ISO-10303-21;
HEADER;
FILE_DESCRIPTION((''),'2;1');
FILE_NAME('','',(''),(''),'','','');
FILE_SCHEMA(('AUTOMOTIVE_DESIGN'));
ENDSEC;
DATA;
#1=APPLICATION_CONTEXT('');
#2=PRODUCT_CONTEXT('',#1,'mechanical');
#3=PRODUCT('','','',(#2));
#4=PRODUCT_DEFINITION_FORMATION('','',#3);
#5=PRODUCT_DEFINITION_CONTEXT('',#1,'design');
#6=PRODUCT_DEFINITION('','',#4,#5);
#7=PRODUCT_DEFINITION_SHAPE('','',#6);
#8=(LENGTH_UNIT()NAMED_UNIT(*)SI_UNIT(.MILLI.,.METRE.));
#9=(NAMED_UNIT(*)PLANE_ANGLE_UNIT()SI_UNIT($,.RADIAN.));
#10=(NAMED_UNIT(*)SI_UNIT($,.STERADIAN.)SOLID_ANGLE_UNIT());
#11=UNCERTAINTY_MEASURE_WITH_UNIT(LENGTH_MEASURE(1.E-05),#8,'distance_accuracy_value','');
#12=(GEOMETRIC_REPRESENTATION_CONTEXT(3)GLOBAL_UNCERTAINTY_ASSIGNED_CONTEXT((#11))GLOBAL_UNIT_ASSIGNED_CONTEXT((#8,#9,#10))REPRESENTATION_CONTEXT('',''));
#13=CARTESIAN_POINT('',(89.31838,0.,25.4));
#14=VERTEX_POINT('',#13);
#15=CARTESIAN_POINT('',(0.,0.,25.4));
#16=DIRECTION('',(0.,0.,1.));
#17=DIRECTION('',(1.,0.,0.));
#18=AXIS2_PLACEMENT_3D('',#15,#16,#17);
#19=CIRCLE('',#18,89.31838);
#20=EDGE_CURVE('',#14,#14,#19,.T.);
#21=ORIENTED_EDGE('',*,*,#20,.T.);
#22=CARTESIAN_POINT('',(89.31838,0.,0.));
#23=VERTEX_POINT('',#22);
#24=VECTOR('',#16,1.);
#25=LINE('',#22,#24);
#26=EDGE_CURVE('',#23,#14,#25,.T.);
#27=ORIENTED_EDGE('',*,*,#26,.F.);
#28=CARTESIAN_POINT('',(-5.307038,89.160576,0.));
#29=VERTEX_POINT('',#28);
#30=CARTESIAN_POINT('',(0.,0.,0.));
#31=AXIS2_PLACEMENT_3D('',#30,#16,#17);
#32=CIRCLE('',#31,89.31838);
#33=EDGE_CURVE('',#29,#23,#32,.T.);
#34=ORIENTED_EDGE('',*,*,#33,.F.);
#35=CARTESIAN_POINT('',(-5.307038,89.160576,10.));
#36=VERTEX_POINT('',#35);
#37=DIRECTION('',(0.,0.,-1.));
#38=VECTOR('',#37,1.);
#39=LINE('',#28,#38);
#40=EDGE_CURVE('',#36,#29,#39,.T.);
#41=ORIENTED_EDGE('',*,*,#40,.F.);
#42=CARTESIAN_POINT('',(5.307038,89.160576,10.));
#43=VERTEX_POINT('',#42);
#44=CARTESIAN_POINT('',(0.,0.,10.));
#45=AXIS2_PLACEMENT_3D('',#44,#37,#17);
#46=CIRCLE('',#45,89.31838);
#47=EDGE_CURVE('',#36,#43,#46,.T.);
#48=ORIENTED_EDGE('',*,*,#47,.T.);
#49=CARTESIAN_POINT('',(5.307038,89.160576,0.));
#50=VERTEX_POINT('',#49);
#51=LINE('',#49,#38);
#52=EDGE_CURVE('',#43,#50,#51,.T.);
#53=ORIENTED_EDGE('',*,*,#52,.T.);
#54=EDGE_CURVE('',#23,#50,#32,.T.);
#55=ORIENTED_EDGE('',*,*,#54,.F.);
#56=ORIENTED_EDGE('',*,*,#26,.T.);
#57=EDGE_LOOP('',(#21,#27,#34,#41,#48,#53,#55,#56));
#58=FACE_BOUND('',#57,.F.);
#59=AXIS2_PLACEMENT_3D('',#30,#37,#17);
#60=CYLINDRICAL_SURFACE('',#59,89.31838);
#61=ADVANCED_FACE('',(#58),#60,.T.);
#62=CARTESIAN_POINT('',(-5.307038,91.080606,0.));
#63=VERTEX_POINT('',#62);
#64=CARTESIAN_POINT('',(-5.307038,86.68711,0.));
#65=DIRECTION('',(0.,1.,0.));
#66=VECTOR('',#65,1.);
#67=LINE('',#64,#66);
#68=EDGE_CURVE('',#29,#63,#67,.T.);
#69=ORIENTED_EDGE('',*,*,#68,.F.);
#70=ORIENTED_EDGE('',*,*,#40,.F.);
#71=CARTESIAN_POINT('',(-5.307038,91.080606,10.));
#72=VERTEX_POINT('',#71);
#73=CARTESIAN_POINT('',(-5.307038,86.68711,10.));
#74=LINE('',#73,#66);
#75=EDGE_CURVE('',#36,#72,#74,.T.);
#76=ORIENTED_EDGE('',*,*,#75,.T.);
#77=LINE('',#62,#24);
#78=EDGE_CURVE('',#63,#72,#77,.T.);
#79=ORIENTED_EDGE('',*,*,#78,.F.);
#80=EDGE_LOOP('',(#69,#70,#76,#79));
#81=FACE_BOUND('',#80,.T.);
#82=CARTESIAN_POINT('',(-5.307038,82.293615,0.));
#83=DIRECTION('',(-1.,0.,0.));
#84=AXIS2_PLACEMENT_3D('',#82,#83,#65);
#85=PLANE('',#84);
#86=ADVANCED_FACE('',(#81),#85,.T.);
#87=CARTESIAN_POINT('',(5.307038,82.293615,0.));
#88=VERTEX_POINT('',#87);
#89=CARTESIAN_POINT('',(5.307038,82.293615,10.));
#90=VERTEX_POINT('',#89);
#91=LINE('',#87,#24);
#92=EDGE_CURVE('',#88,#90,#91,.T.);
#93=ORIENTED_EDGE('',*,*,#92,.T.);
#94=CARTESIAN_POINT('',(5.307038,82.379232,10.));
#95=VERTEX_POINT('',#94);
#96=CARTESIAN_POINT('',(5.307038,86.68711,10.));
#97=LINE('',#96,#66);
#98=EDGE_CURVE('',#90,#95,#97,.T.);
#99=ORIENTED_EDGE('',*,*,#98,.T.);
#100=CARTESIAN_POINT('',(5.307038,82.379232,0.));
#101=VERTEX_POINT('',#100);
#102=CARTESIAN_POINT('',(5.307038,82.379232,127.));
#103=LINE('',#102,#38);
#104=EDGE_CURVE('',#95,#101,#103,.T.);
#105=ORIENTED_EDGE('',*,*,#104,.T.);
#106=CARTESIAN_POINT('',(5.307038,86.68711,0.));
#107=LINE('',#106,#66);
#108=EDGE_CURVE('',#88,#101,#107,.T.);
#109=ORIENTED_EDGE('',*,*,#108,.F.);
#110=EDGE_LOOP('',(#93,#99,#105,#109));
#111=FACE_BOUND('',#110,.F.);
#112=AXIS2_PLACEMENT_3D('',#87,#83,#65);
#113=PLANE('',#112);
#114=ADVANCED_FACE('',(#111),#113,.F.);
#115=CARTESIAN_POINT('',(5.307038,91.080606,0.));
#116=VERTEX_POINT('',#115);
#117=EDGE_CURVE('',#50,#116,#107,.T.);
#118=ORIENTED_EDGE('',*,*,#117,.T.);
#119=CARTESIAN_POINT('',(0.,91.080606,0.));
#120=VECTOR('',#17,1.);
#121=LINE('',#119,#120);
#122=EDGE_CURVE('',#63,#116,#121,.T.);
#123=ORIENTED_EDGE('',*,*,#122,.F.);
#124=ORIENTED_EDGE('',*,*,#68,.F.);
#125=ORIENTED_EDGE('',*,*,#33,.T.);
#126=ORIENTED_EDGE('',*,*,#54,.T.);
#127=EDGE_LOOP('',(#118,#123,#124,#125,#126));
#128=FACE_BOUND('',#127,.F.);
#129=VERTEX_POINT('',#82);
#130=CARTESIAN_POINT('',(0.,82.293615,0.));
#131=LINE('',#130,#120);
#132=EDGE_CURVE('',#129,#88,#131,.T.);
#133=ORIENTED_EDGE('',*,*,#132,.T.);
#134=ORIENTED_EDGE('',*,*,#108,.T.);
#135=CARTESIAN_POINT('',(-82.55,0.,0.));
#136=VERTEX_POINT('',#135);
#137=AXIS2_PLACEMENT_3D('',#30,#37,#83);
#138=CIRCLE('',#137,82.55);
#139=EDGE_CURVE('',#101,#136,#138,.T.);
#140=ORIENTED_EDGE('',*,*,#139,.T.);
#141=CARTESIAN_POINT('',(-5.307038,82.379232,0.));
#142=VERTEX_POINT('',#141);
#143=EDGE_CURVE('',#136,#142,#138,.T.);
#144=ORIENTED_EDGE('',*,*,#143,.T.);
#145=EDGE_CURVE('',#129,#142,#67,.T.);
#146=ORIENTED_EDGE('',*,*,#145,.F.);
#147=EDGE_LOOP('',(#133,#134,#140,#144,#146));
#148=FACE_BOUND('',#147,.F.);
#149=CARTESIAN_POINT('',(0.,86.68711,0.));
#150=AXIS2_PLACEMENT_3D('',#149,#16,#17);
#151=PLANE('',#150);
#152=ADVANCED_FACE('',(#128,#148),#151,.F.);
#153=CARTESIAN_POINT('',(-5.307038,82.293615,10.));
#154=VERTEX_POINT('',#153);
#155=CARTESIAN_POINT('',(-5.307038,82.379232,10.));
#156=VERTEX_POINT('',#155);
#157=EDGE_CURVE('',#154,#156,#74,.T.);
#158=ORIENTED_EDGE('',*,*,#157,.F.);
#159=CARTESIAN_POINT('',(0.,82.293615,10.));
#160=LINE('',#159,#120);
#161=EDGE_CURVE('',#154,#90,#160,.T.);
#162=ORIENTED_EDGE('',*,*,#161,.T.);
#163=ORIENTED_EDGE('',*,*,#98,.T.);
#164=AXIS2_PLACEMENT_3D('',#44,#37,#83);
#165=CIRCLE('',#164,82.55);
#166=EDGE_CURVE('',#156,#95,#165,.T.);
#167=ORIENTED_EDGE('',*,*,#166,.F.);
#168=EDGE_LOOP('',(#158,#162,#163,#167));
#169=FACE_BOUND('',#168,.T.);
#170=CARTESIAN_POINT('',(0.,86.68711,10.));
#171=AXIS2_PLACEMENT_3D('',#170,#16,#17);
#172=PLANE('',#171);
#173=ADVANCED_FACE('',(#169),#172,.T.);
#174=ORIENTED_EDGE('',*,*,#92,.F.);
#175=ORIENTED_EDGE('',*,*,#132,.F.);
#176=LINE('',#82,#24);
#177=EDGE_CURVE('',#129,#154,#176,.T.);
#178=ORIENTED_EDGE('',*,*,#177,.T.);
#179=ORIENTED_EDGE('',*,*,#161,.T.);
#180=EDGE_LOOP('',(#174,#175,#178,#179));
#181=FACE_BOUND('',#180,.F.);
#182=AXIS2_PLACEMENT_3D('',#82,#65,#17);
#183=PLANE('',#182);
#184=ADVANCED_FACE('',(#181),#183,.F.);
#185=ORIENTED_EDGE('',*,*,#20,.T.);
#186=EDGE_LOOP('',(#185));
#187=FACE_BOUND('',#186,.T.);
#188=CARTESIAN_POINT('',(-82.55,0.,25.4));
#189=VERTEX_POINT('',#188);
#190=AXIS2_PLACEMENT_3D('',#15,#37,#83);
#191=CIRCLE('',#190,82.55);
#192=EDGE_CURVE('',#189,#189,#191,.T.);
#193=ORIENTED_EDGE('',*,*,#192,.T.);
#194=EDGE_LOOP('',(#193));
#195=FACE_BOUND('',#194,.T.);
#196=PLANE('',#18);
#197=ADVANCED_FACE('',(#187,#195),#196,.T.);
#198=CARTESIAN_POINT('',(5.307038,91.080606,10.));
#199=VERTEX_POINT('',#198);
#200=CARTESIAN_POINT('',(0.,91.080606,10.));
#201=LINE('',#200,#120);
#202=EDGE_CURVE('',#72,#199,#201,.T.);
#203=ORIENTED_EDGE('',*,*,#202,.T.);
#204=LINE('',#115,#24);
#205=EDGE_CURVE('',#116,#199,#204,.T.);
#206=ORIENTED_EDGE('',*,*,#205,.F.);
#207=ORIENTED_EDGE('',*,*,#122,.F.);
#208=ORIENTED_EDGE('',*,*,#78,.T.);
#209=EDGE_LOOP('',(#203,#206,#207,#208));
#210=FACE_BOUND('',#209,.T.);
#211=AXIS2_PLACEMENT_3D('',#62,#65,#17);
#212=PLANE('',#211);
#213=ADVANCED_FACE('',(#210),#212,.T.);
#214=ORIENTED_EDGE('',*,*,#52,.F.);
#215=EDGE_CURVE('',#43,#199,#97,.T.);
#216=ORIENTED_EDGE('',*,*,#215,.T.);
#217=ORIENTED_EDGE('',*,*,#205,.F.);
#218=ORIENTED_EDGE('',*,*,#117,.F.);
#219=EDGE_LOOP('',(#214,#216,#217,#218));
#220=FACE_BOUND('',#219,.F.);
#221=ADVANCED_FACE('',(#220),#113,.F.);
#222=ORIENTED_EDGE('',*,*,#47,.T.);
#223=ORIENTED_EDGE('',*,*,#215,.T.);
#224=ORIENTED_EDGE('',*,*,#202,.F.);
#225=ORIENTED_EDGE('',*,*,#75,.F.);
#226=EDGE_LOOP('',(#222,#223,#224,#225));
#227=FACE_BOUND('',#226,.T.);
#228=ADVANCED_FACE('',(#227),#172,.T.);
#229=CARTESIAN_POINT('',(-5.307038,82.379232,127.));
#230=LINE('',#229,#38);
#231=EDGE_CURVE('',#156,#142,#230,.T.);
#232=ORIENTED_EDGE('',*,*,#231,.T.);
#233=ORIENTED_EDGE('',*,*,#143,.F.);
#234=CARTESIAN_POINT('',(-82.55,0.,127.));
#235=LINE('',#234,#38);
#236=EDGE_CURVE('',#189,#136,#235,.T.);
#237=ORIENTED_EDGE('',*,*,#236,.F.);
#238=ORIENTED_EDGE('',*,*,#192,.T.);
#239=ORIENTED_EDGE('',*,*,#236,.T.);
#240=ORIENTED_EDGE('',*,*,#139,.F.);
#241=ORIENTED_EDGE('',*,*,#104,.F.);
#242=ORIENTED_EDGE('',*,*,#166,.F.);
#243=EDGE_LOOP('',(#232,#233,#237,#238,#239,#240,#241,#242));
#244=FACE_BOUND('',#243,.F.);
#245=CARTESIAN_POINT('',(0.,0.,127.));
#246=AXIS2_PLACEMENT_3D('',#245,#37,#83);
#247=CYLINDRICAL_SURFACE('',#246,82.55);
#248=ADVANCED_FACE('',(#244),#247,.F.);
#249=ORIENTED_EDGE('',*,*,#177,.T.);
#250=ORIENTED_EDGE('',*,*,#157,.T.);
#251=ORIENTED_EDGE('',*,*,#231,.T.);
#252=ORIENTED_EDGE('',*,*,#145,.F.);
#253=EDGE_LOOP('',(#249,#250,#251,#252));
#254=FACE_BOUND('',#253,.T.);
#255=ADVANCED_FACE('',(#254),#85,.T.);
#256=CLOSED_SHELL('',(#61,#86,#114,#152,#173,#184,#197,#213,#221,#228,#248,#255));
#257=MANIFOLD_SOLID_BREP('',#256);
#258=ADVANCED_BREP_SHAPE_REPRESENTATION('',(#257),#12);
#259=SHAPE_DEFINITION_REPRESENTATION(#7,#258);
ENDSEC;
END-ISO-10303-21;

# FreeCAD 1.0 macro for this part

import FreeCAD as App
import Part
import Sketcher

V = App.Vector
Q = App.Units.Quantity


def add_polygon(sketch, points):
    """Adds a closed chain of lines whose ends are joined by coincident constraints."""
    first, n = sketch.GeometryCount, len(points)
    for a, b in zip(points, points[1:] + points[:1]):
        sketch.addGeometry(Part.LineSegment(App.Vector(*a, 0), App.Vector(*b, 0)), False)
    for i in range(n):
        sketch.addConstraint(Sketcher.Constraint("Coincident", first + i, 2, first + (i + 1) % n, 1))

doc = App.newDocument("Part")
body = doc.addObject("PartDesign::Body", "Body")

sketch1 = body.newObject("Sketcher::SketchObject", "Sketch")
sketch1.AttachmentSupport = (doc.getObject("XY_Plane"), [""])
sketch1.MapMode = "FlatFace"
sketch1.addGeometry(Part.Circle(V(0, 0, 0), V(0, 0, 1), 89.31838), False)
sketch1.addConstraint(Sketcher.Constraint("Coincident", 0, 3, -1, 1))
sketch1.addConstraint(Sketcher.Constraint("Diameter", 0, Q("178.63676 mm")))
pad1 = body.newObject("PartDesign::Pad", "Pad")
pad1.Profile = sketch1
pad1.Length = Q("1 in")

sketch2 = body.newObject("Sketcher::SketchObject", "Sketch001")
sketch2.AttachmentSupport = (doc.getObject("XY_Plane"), [""])
sketch2.MapMode = "FlatFace"
sketch2.AttachmentOffset = App.Placement(V(0, 0, 1 * 25.4), App.Rotation())
sketch2.addGeometry(Part.Circle(V(0, 0, 0), V(0, 0, 1), 82.55), False)
sketch2.addConstraint(Sketcher.Constraint("Coincident", 0, 3, -1, 1))
sketch2.addConstraint(Sketcher.Constraint("Diameter", 0, Q("6.5 in")))
doc.recompute()
hole = body.newObject("PartDesign::Hole", "Hole")
hole.Profile = sketch2
hole.ThreadType = "None"
hole.Diameter = Q("6.5 in")
hole.DepthType = "Dimension"
hole.Depth = Q("4 in")
hole.DrillPoint = "Flat"

sketch3 = body.newObject("Sketcher::SketchObject", "Sketch002")
sketch3.AttachmentSupport = (doc.getObject("XY_Plane"), [""])
sketch3.MapMode = "FlatFace"
add_polygon(sketch3, [(-5.307038, 91.080606), (-5.307038, 82.293615), (5.307038, 82.293615), (5.307038, 91.080606)])
sketch3.addConstraint(Sketcher.Constraint("Vertical", 0))
sketch3.addConstraint(Sketcher.Constraint("Horizontal", 1))
sketch3.addConstraint(Sketcher.Constraint("Vertical", 2))
sketch3.addConstraint(Sketcher.Constraint("Horizontal", 3))
sketch3.addConstraint(Sketcher.Constraint("DistanceY", 0, 2, 0, 1, Q("8.786991 mm")))
sketch3.addConstraint(Sketcher.Constraint("DistanceX", 1, 1, 1, 2, Q("10.614076 mm")))
sketch3.addConstraint(Sketcher.Constraint("DistanceX", 0, 2, -1, 1, Q("5.307038 mm")))
sketch3.addConstraint(Sketcher.Constraint("DistanceY", -1, 1, 0, 2, Q("82.293615 mm")))
pad2 = body.newObject("PartDesign::Pad", "Pad001")
pad2.Profile = sketch3
pad2.Length = 10

doc.recompute()
